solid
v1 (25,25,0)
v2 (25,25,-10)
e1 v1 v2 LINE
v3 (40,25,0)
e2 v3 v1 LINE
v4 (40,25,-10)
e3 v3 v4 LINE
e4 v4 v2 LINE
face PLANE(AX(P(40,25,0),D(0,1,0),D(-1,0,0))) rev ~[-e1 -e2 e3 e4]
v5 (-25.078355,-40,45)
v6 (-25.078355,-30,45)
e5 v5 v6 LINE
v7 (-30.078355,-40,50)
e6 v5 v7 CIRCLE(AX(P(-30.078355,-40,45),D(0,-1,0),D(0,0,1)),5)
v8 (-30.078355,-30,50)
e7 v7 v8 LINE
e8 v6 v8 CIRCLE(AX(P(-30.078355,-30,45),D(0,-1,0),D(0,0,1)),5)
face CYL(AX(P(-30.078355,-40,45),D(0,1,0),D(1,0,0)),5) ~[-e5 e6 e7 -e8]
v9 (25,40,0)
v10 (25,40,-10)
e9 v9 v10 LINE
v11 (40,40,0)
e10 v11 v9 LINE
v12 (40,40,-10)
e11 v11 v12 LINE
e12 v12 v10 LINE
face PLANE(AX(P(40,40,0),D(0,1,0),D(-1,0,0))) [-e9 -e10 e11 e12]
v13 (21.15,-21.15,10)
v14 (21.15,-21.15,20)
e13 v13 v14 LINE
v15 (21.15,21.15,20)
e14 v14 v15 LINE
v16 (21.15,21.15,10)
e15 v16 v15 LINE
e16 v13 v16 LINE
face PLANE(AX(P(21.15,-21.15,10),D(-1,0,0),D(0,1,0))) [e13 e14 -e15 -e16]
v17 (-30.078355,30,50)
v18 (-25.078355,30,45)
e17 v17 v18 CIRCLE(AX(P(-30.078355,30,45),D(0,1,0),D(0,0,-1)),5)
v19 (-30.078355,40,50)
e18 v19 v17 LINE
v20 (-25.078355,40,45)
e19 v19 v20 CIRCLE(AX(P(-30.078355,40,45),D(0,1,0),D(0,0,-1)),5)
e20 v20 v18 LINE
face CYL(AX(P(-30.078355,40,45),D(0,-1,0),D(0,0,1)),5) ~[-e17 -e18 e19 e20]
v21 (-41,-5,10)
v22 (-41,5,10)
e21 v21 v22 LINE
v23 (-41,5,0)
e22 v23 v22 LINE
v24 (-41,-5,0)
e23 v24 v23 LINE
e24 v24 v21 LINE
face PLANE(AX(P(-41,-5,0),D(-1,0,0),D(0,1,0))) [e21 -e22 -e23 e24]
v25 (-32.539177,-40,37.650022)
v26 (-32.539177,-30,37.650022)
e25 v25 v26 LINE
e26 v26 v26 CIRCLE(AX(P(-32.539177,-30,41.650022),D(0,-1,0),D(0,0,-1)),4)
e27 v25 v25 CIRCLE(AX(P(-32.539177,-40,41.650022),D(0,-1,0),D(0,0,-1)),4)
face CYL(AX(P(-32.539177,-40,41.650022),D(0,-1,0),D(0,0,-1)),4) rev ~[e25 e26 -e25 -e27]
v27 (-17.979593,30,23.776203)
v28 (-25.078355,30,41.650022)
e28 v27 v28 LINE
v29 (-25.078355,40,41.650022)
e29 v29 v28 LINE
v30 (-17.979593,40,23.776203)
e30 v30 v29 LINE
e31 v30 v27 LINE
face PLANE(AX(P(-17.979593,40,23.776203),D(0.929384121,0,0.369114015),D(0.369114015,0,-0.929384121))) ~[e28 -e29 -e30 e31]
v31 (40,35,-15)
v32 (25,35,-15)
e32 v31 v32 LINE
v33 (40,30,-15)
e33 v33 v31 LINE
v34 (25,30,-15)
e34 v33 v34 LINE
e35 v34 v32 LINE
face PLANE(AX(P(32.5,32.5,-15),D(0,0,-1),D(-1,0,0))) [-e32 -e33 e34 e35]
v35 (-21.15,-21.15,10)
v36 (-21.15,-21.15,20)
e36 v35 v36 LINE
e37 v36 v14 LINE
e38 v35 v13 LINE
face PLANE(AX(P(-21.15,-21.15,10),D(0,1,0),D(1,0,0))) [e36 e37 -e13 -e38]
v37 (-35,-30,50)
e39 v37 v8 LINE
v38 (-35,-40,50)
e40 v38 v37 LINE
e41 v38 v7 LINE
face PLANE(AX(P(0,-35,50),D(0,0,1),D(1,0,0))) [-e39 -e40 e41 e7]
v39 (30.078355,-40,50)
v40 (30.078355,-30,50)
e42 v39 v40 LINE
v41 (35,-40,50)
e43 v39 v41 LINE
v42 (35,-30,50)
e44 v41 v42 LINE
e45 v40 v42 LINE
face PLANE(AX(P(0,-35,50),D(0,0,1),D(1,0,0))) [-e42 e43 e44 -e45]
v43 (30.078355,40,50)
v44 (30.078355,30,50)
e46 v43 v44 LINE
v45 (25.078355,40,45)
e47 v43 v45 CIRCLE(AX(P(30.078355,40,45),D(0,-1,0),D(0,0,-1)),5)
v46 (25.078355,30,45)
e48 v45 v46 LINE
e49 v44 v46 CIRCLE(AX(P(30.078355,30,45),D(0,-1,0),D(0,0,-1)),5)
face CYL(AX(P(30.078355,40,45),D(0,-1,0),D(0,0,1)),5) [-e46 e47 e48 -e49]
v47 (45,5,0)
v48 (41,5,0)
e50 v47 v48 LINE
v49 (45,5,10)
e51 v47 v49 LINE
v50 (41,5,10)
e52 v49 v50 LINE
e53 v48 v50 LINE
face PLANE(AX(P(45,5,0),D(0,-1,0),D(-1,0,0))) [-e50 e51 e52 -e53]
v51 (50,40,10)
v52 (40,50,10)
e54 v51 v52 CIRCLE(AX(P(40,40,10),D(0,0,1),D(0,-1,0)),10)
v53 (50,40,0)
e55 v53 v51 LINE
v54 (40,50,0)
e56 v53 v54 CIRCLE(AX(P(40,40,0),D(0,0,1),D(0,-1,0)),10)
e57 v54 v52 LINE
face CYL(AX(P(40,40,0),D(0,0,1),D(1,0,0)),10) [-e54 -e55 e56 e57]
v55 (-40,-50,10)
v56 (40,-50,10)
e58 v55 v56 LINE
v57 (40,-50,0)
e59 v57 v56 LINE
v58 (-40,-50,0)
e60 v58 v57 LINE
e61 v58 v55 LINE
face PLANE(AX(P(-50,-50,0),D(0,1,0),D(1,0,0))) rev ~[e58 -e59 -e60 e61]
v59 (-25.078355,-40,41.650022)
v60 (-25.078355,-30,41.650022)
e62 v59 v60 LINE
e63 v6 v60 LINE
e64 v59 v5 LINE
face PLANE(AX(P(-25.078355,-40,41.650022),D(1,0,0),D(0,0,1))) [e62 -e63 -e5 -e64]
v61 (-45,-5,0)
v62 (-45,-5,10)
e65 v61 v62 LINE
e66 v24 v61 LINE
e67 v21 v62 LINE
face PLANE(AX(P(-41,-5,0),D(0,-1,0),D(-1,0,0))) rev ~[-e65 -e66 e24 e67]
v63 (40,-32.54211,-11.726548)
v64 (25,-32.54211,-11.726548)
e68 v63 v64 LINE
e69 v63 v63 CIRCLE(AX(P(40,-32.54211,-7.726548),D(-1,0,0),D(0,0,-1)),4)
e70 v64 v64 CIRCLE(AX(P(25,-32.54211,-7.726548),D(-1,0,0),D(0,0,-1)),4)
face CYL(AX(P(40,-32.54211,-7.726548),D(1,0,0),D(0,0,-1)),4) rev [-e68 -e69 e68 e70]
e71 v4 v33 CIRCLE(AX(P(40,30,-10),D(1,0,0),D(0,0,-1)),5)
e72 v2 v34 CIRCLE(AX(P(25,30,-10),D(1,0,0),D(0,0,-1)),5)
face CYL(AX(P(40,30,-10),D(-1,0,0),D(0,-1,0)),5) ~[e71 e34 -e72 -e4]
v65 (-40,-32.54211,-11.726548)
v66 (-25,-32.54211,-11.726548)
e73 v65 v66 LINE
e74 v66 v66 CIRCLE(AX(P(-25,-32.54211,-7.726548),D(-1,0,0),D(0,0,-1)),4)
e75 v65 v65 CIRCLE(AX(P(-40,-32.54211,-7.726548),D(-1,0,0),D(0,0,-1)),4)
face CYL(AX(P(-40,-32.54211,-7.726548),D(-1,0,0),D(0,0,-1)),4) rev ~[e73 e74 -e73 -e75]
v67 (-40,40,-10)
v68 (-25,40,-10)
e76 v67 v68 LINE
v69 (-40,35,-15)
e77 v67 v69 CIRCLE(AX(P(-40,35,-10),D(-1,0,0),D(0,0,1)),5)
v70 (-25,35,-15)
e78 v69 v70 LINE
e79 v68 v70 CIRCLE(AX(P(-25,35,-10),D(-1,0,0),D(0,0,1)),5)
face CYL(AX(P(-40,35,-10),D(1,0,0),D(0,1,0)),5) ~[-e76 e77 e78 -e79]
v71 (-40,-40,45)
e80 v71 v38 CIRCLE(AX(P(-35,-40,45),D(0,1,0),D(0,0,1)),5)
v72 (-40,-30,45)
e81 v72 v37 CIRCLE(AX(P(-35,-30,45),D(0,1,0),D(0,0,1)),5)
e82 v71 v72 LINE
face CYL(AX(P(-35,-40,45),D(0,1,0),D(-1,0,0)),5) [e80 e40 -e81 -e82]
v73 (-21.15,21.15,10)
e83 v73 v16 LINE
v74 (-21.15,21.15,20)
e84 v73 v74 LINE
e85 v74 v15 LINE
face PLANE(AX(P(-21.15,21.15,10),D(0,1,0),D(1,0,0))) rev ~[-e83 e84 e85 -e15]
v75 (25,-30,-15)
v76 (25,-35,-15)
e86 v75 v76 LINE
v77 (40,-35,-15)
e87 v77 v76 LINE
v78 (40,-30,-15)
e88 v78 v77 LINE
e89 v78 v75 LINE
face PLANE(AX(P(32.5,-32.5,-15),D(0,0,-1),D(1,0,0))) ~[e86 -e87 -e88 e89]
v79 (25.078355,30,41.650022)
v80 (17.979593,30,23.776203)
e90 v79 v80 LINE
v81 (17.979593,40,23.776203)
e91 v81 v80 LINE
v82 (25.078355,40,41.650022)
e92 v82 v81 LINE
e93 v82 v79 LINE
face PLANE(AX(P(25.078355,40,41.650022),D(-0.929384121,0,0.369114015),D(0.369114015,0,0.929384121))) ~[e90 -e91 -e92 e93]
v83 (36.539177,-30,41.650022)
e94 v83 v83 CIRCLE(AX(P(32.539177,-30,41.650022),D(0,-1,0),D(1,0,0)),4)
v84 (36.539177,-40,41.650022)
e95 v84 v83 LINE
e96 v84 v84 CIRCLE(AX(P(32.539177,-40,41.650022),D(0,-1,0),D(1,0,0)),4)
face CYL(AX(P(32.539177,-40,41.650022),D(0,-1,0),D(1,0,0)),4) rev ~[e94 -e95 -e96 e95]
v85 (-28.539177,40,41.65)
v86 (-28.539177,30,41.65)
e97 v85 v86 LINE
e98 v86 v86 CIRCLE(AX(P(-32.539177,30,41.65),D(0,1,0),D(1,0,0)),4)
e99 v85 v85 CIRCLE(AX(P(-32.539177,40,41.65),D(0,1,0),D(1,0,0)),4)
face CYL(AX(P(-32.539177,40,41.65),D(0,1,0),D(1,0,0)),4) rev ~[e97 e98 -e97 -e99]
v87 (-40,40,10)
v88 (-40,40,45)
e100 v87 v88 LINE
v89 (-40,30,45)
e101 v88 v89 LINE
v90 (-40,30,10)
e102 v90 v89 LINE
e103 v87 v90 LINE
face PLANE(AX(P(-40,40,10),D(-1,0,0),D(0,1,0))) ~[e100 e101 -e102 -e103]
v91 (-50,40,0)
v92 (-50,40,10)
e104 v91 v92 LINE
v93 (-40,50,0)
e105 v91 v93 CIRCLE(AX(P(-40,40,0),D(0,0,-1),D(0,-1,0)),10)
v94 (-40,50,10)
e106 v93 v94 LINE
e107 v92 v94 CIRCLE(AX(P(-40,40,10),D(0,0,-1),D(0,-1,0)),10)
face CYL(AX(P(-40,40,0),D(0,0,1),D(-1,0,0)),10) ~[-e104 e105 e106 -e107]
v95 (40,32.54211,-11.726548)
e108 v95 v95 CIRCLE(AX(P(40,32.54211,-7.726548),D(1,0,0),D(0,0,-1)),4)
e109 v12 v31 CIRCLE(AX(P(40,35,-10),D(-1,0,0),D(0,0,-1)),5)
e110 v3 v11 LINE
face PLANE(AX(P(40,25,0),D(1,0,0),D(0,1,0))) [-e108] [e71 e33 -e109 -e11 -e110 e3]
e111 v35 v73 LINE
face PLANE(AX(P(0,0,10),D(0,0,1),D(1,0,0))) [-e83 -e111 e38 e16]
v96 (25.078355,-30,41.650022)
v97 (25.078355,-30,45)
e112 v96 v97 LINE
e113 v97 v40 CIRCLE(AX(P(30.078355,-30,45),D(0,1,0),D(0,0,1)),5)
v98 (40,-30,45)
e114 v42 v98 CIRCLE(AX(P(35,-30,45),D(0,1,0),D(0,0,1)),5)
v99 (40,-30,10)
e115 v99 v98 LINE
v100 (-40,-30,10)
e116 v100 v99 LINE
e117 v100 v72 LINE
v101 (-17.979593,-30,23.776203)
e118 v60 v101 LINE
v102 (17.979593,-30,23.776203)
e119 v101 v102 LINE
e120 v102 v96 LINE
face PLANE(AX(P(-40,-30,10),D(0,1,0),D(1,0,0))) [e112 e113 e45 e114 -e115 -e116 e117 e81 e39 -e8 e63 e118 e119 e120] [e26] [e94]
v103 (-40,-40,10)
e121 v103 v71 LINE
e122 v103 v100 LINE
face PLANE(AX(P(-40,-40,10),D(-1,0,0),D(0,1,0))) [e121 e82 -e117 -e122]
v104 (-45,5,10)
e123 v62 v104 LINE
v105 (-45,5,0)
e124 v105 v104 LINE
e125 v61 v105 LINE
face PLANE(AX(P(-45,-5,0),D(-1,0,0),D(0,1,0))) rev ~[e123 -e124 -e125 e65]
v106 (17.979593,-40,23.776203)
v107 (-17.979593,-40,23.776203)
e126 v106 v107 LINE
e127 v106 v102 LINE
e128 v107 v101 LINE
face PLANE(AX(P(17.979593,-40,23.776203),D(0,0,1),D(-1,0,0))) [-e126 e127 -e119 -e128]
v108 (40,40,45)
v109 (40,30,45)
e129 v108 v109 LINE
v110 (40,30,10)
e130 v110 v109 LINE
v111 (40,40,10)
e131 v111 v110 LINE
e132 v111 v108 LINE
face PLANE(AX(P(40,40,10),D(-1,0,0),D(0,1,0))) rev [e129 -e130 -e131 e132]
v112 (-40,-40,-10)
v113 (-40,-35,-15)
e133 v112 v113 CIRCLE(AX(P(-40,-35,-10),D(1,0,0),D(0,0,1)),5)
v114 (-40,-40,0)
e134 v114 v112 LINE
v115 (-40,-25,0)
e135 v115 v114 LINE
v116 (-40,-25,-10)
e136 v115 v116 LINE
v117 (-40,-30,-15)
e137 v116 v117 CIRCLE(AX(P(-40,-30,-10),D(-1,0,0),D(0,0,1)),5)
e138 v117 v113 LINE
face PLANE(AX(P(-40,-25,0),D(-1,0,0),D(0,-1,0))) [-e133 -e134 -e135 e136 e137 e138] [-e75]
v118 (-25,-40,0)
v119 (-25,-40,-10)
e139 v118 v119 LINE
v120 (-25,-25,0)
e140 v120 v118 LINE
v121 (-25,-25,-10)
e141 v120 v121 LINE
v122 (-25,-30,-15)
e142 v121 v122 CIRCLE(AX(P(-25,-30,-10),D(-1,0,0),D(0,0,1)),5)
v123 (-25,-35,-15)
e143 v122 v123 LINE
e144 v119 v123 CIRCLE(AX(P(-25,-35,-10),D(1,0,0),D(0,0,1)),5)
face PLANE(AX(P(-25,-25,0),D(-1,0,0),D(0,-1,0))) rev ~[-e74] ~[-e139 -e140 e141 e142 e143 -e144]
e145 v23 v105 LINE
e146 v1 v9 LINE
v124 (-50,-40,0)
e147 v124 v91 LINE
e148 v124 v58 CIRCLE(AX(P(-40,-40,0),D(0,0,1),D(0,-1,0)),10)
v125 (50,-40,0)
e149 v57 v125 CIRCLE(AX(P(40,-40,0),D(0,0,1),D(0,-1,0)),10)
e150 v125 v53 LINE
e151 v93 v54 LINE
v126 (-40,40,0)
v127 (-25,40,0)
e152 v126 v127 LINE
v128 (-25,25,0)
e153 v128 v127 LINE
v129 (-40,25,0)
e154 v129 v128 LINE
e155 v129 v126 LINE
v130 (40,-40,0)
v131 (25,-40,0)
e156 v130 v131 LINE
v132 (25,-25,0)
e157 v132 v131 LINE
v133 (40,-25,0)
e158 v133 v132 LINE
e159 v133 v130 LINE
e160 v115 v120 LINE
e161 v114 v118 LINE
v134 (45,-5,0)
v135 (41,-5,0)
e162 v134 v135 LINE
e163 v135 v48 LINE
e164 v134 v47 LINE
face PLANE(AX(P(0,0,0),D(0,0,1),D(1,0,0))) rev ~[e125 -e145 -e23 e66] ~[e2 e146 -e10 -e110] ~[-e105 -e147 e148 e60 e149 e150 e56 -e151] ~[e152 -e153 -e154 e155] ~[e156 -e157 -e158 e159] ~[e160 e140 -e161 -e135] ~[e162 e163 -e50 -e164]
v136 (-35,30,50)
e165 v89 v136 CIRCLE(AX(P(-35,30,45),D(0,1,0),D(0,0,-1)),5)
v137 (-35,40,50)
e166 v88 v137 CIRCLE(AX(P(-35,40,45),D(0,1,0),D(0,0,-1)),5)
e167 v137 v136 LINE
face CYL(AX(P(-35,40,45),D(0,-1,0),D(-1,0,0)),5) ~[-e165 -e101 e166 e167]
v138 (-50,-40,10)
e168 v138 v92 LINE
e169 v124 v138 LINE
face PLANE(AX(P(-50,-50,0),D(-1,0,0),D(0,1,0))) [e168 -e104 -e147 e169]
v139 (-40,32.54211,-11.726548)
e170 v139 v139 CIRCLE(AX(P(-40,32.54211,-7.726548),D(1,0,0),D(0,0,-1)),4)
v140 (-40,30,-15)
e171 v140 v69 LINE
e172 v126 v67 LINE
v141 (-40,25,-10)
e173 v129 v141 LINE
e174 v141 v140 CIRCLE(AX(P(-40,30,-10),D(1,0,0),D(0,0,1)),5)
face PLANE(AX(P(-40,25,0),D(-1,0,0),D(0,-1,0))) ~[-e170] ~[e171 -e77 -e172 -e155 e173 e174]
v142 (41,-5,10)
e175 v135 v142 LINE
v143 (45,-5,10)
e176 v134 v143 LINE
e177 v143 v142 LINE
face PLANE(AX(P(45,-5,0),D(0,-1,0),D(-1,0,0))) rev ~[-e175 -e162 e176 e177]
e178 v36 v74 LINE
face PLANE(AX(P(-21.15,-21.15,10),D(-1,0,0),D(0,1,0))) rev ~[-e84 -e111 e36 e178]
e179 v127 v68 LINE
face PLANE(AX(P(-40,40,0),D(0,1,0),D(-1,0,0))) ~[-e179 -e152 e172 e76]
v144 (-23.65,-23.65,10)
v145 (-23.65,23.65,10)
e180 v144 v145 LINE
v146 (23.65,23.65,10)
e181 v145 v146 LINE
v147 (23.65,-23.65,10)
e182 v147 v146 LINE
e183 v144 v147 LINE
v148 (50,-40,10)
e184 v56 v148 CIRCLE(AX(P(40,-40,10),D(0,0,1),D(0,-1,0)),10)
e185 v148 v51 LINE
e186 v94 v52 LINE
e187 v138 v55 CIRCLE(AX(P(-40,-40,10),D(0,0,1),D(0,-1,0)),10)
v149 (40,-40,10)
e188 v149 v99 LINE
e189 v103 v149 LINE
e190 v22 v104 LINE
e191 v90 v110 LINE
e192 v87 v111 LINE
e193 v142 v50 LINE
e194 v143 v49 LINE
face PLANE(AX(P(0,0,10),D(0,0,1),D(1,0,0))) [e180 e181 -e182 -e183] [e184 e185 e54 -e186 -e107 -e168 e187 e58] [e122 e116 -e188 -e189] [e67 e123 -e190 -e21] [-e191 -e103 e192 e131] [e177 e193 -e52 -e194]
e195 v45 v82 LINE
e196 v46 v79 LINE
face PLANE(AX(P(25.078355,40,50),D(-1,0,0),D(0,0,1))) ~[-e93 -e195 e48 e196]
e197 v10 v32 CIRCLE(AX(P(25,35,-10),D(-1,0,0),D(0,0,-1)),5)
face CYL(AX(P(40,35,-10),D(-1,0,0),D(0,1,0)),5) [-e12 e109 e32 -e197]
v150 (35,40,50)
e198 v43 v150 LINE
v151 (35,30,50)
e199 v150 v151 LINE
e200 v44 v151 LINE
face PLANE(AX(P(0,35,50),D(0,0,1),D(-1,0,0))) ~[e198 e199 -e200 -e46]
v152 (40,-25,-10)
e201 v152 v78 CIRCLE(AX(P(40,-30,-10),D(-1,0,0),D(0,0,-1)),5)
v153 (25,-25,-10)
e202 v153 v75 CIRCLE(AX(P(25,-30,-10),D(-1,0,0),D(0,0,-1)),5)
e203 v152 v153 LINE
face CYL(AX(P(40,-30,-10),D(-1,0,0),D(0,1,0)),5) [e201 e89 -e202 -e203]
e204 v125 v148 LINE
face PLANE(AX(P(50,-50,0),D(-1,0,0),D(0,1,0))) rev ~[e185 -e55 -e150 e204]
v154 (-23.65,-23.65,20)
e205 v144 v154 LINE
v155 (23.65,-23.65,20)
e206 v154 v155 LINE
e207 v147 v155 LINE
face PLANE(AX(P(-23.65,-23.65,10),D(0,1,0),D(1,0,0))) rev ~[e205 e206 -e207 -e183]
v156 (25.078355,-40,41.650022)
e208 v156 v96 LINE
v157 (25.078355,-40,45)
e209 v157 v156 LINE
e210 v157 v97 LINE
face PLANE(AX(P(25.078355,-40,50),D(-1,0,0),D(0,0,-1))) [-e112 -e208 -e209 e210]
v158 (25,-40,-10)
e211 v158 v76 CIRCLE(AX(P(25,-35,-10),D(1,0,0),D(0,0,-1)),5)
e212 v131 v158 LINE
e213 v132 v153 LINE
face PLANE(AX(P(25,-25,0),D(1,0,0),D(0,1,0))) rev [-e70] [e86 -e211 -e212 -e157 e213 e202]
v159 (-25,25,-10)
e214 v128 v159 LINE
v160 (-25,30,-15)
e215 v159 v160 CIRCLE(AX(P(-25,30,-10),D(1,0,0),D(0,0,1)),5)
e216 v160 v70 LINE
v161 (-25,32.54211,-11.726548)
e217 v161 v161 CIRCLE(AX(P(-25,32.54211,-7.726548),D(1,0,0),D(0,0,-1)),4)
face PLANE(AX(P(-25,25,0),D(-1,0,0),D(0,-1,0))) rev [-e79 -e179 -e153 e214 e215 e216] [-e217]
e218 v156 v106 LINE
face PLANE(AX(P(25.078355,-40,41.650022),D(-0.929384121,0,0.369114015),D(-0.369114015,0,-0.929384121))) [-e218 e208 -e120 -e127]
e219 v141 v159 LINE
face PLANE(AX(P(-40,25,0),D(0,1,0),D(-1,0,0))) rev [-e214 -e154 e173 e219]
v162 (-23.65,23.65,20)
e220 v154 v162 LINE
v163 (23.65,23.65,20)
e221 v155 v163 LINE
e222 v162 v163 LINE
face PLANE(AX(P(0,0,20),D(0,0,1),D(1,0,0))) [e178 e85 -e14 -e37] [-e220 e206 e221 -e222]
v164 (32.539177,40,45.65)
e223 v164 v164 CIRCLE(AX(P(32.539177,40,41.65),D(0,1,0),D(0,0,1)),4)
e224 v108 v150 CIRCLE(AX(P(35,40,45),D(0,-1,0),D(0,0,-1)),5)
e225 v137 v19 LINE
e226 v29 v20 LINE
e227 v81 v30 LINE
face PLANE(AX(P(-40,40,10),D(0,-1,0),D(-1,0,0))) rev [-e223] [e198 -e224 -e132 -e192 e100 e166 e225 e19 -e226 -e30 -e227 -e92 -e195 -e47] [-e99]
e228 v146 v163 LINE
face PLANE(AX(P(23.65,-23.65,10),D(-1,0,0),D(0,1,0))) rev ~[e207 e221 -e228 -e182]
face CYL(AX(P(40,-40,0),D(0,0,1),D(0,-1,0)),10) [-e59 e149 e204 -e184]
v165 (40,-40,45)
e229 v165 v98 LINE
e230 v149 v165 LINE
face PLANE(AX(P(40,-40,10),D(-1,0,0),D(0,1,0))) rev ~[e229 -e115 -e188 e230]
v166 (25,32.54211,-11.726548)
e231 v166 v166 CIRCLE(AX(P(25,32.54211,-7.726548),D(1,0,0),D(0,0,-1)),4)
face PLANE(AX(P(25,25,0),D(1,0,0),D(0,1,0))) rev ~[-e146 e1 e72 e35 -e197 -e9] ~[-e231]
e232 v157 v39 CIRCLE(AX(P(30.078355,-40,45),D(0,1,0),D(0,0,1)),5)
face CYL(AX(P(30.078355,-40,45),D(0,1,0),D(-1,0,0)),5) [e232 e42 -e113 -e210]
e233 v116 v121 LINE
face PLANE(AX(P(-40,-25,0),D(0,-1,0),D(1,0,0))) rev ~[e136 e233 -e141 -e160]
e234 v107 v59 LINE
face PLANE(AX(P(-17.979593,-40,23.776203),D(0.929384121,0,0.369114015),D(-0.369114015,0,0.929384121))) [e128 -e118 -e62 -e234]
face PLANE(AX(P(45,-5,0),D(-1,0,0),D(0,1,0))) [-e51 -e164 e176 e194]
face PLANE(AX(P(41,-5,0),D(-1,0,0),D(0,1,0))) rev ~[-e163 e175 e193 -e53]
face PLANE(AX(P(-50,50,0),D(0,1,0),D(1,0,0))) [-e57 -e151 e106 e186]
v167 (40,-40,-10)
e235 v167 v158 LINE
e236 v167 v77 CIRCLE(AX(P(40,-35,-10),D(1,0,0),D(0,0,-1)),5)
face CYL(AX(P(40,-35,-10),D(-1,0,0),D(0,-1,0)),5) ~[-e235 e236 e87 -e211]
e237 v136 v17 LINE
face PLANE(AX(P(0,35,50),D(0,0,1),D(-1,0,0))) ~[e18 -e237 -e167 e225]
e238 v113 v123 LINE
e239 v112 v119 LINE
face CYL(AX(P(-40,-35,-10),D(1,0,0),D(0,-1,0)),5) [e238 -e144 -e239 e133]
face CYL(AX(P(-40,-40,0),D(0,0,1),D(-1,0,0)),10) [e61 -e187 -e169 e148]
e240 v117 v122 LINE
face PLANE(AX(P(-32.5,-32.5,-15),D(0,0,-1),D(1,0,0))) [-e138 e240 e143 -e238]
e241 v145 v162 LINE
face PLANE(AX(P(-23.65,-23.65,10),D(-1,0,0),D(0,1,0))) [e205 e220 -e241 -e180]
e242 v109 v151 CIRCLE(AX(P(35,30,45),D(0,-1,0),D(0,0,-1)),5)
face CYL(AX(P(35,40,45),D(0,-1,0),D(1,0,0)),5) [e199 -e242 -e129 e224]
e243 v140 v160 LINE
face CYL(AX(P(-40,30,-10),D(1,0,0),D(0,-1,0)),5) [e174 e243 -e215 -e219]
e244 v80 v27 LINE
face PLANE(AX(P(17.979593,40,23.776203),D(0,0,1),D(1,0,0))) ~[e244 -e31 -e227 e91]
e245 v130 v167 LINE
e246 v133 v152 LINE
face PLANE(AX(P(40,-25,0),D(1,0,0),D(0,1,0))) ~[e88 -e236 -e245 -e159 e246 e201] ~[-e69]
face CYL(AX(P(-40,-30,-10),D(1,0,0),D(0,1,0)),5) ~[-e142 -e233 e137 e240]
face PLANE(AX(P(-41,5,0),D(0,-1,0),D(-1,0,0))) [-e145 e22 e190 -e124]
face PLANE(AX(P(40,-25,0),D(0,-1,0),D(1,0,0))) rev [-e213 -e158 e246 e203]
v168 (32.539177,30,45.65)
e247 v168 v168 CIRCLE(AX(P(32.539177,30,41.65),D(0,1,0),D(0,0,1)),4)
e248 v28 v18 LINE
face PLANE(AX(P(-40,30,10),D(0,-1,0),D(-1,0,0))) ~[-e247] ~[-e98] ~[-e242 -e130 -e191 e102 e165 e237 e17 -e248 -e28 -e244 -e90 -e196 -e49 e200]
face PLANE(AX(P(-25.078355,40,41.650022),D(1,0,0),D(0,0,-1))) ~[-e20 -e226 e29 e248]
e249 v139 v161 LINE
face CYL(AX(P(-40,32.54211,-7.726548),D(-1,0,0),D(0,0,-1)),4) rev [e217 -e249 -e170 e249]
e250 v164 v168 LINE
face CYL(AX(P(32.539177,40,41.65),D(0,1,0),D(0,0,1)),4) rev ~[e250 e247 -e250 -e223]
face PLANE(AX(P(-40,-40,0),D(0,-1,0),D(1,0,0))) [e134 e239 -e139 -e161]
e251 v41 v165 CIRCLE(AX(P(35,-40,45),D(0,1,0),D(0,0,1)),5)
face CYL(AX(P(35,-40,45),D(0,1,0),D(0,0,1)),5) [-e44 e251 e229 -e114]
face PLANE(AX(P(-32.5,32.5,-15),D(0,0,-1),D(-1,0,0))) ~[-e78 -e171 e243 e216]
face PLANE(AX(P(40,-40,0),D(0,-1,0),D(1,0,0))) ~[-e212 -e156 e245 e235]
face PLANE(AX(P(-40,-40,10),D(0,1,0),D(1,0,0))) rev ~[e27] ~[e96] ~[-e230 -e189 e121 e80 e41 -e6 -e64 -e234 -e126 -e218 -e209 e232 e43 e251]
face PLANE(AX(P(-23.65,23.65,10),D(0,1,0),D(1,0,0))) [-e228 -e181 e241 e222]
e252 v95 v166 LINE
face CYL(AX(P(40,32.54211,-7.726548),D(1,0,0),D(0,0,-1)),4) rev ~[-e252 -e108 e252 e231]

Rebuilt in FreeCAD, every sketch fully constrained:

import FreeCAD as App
import Part
import Sketcher

V = App.Vector
Q = App.Units.Quantity


def edges_at(feature, points):
    """Names of the edges that pass closest to the given points."""
    edges = feature.Shape.Edges
    near = lambda p: min(range(len(edges)), key=lambda i: edges[i].distToShape(Part.Vertex(*p))[0])
    return sorted({f"Edge{near(p) + 1}" for p in points})

doc = App.newDocument("Part")
body = doc.addObject("PartDesign::Body", "Body")

# Sketch on XY plane
sketch1 = doc.addObject("Sketcher::SketchObject", "Sketch")
body.addObject(sketch1)
sketch1.AttachmentSupport = (doc.XY_Plane, [""])
sketch1.MapMode = "FlatFace"
sketch1.addGeometry([
    Part.LineSegment(V(-50, 50, 0), V(-50, -50, 0)),
    Part.LineSegment(V(-50, -50, 0), V(50, -50, 0)),
    Part.LineSegment(V(50, -50, 0), V(50, 50, 0)),
    Part.LineSegment(V(50, 50, 0), V(-50, 50, 0)),
], False)
sketch1.addConstraint([
    Sketcher.Constraint("Coincident", 0, 2, 1, 1),
    Sketcher.Constraint("Coincident", 1, 2, 2, 1),
    Sketcher.Constraint("Coincident", 2, 2, 3, 1),
    Sketcher.Constraint("Coincident", 3, 2, 0, 1),
    Sketcher.Constraint("Vertical", 0),
    Sketcher.Constraint("Horizontal", 1),
    Sketcher.Constraint("Vertical", 2),
    Sketcher.Constraint("Horizontal", 3),
    Sketcher.Constraint("Symmetric", 0, 2, 2, 2, -1, 1),
    Sketcher.Constraint("Equal", 3, 0),
    Sketcher.Constraint("DistanceX", 1, 1, 1, 2, Q("100 mm")),
])
pad1 = doc.addObject("PartDesign::Pad", "Pad")
body.addObject(pad1)
pad1.Profile = sketch1
pad1.Length = 10
doc.recompute()

fillet = doc.addObject("PartDesign::Fillet", "Fillet")
body.addObject(fillet)
fillet.Base = (pad1, edges_at(pad1, [
    (50, -50, 5),
    (-50, -50, 5),
    (-50, 50, 5),
    (50, 50, 5),
]))
fillet.Radius = 10

# Sketch on XY plane
sketch2 = doc.addObject("Sketcher::SketchObject", "Sketch001")
body.addObject(sketch2)
sketch2.AttachmentSupport = (doc.XY_Plane, [""])
sketch2.MapMode = "FlatFace"
sketch2.addGeometry([
    Part.LineSegment(V(40, 40, 0), V(40, 25, 0)),
    Part.LineSegment(V(40, 25, 0), V(25, 25, 0)),
    Part.LineSegment(V(25, 25, 0), V(25, 40, 0)),
    Part.LineSegment(V(25, 40, 0), V(40, 40, 0)),
], False)
sketch2.addConstraint([
    Sketcher.Constraint("Coincident", 0, 2, 1, 1),
    Sketcher.Constraint("Coincident", 1, 2, 2, 1),
    Sketcher.Constraint("Coincident", 2, 2, 3, 1),
    Sketcher.Constraint("Coincident", 3, 2, 0, 1),
    Sketcher.Constraint("Vertical", 0),
    Sketcher.Constraint("Horizontal", 1),
    Sketcher.Constraint("Vertical", 2),
    Sketcher.Constraint("Horizontal", 3),
    Sketcher.Constraint("Equal", 3, 0),
    Sketcher.Constraint("DistanceX", 1, 2, 1, 1, Q("15 mm")),
    Sketcher.Constraint("DistanceX", -1, 1, 0, 2, Q("40 mm")),
    Sketcher.Constraint("DistanceY", -1, 1, 0, 2, Q("25 mm")),
])
pad2 = doc.addObject("PartDesign::Pad", "Pad001")
body.addObject(pad2)
pad2.Profile = sketch2
pad2.Length = 15
pad2.Reversed = True
doc.recompute()

fillet2 = doc.addObject("PartDesign::Fillet", "Fillet001")
body.addObject(fillet2)
fillet2.Base = (pad2, edges_at(pad2, [(32.5, 25, -15), (32.5, 40, -15)]))
fillet2.Radius = 5

# Sketch on YZ plane
sketch3 = doc.addObject("Sketcher::SketchObject", "Sketch002")
body.addObject(sketch3)
sketch3.AttachmentSupport = (doc.YZ_Plane, [""])
sketch3.MapMode = "FlatFace"
sketch3.AttachmentOffset = App.Placement(V(0, 0, 40), App.Rotation())
sketch3.addGeometry(Part.Circle(V(32.54211, -7.726548, 0), V(0, 0, 1), 4), False)
sketch3.addConstraint([
    Sketcher.Constraint("Diameter", 0, Q("8 mm")),
    Sketcher.Constraint("DistanceX", -1, 1, 0, 3, Q("32.54211 mm")),
    Sketcher.Constraint("DistanceY", 0, 3, -1, 1, Q("7.726548 mm")),
])
pocket1 = doc.addObject("PartDesign::Pocket", "Pocket")
body.addObject(pocket1)
pocket1.Profile = sketch3
pocket1.Length = 15
doc.recompute()

mirrored = doc.addObject("PartDesign::Mirrored", "Mirrored")
body.addObject(mirrored)
mirrored.Originals = [pad2, pocket1]
mirrored.MirrorPlane = (doc.YZ_Plane, [""])
body.Tip = mirrored
doc.recompute()

fillet3 = doc.addObject("PartDesign::Fillet", "Fillet002")
body.addObject(fillet3)
fillet3.Base = (mirrored, edges_at(mirrored, [(-32.5, 40, -15), (-32.5, 25, -15)]))
fillet3.Radius = 5
doc.recompute()

mirrored2 = doc.addObject("PartDesign::Mirrored", "Mirrored001")
body.addObject(mirrored2)
mirrored2.Originals = [pad2, pocket1]
mirrored2.MirrorPlane = (doc.XZ_Plane, [""])
body.Tip = mirrored2

# Sketch on XY plane
sketch4 = doc.addObject("Sketcher::SketchObject", "Sketch003")
body.addObject(sketch4)
sketch4.AttachmentSupport = (doc.XY_Plane, [""])
sketch4.MapMode = "FlatFace"
sketch4.addGeometry([
    Part.LineSegment(V(-40, -40, 0), V(-40, -25, 0)),
    Part.LineSegment(V(-40, -25, 0), V(-25, -25, 0)),
    Part.LineSegment(V(-25, -25, 0), V(-25, -40, 0)),
    Part.LineSegment(V(-25, -40, 0), V(-40, -40, 0)),
], False)
sketch4.addConstraint([
    Sketcher.Constraint("Coincident", 0, 2, 1, 1),
    Sketcher.Constraint("Coincident", 1, 2, 2, 1),
    Sketcher.Constraint("Coincident", 2, 2, 3, 1),
    Sketcher.Constraint("Coincident", 3, 2, 0, 1),
    Sketcher.Constraint("Vertical", 0),
    Sketcher.Constraint("Horizontal", 1),
    Sketcher.Constraint("Vertical", 2),
    Sketcher.Constraint("Horizontal", 3),
    Sketcher.Constraint("Equal", 3, 0),
    Sketcher.Constraint("DistanceX", 1, 1, 1, 2, Q("15 mm")),
    Sketcher.Constraint("DistanceX", 0, 2, -1, 1, Q("40 mm")),
    Sketcher.Constraint("DistanceY", 0, 2, -1, 1, Q("25 mm")),
])
pad3 = doc.addObject("PartDesign::Pad", "Pad002")
body.addObject(pad3)
pad3.Profile = sketch4
pad3.Length = 15
pad3.Reversed = True

# Sketch on YZ plane
sketch5 = doc.addObject("Sketcher::SketchObject", "Sketch004")
body.addObject(sketch5)
sketch5.AttachmentSupport = (doc.YZ_Plane, [""])
sketch5.MapMode = "FlatFace"
sketch5.AttachmentOffset = App.Placement(V(0, 0, -40), App.Rotation())
sketch5.addGeometry(Part.Circle(V(-32.54211, -7.726548, 0), V(0, 0, 1), 4), False)
sketch5.addConstraint([
    Sketcher.Constraint("Diameter", 0, Q("8 mm")),
    Sketcher.Constraint("DistanceX", 0, 3, -1, 1, Q("32.54211 mm")),
    Sketcher.Constraint("DistanceY", 0, 3, -1, 1, Q("7.726548 mm")),
])
pocket2 = doc.addObject("PartDesign::Pocket", "Pocket001")
body.addObject(pocket2)
pocket2.Profile = sketch5
pocket2.Length = 15
pocket2.Reversed = True
doc.recompute()

fillet4 = doc.addObject("PartDesign::Fillet", "Fillet003")
body.addObject(fillet4)
fillet4.Base = (pocket2, edges_at(pocket2, [(-32.5, -40, -15), (-32.5, -25, -15)]))
fillet4.Radius = 5
doc.recompute()

fillet5 = doc.addObject("PartDesign::Fillet", "Fillet004")
body.addObject(fillet5)
fillet5.Base = (fillet4, edges_at(fillet4, [(32.5, -40, -15), (32.5, -25, -15)]))
fillet5.Radius = 5

# Sketch on XY plane
sketch6 = doc.addObject("Sketcher::SketchObject", "Sketch005")
body.addObject(sketch6)
sketch6.AttachmentSupport = (doc.XY_Plane, [""])
sketch6.MapMode = "FlatFace"
sketch6.AttachmentOffset = App.Placement(V(0, 0, 10), App.Rotation())
sketch6.addGeometry([
    Part.LineSegment(V(-23.65, 23.65, 0), V(-23.65, -23.65, 0)),  # 0
    Part.LineSegment(V(-23.65, -23.65, 0), V(23.65, -23.65, 0)),  # 1
    Part.LineSegment(V(23.65, -23.65, 0), V(23.65, 23.65, 0)),  # 2
    Part.LineSegment(V(23.65, 23.65, 0), V(-23.65, 23.65, 0)),  # 3
    Part.LineSegment(V(21.15, -21.15, 0), V(-21.15, -21.15, 0)),  # 4
    Part.LineSegment(V(-21.15, -21.15, 0), V(-21.15, 21.15, 0)),  # 5
    Part.LineSegment(V(-21.15, 21.15, 0), V(21.15, 21.15, 0)),  # 6
    Part.LineSegment(V(21.15, 21.15, 0), V(21.15, -21.15, 0)),  # 7
], False)
sketch6.addConstraint([
    Sketcher.Constraint("Coincident", 0, 2, 1, 1),
    Sketcher.Constraint("Coincident", 1, 2, 2, 1),
    Sketcher.Constraint("Coincident", 2, 2, 3, 1),
    Sketcher.Constraint("Coincident", 3, 2, 0, 1),
    Sketcher.Constraint("Coincident", 4, 2, 5, 1),
    Sketcher.Constraint("Coincident", 5, 2, 6, 1),
    Sketcher.Constraint("Coincident", 6, 2, 7, 1),
    Sketcher.Constraint("Coincident", 7, 2, 4, 1),
    Sketcher.Constraint("Vertical", 0),
    Sketcher.Constraint("Horizontal", 1),
    Sketcher.Constraint("Vertical", 2),
    Sketcher.Constraint("Horizontal", 3),
    Sketcher.Constraint("Horizontal", 4),
    Sketcher.Constraint("Vertical", 5),
    Sketcher.Constraint("Horizontal", 6),
    Sketcher.Constraint("Vertical", 7),
    Sketcher.Constraint("Symmetric", 0, 2, 2, 2, -1, 1),
    Sketcher.Constraint("Symmetric", 4, 2, 6, 2, -1, 1),
    Sketcher.Constraint("Equal", 3, 0),
    Sketcher.Constraint("Equal", 6, 5),
    Sketcher.Constraint("DistanceX", 1, 1, 1, 2, Q("47.3 mm")),
    Sketcher.Constraint("DistanceX", 4, 2, 4, 1, Q("42.3 mm")),
])
pad4 = doc.addObject("PartDesign::Pad", "Pad003")
body.addObject(pad4)
pad4.Profile = sketch6
pad4.Length = 10

# Sketch on XY plane
sketch7 = doc.addObject("Sketcher::SketchObject", "Sketch006")
body.addObject(sketch7)
sketch7.AttachmentSupport = (doc.XY_Plane, [""])
sketch7.MapMode = "FlatFace"
sketch7.AttachmentOffset = App.Placement(V(0, 0, 10), App.Rotation())
sketch7.addGeometry([
    Part.LineSegment(V(-40, -30, 0), V(-40, -40, 0)),
    Part.LineSegment(V(-40, -40, 0), V(40, -40, 0)),
    Part.LineSegment(V(40, -40, 0), V(40, -30, 0)),
    Part.LineSegment(V(40, -30, 0), V(-40, -30, 0)),
], False)
sketch7.addConstraint([
    Sketcher.Constraint("Coincident", 0, 2, 1, 1),
    Sketcher.Constraint("Coincident", 1, 2, 2, 1),
    Sketcher.Constraint("Coincident", 2, 2, 3, 1),
    Sketcher.Constraint("Coincident", 3, 2, 0, 1),
    Sketcher.Constraint("Vertical", 0),
    Sketcher.Constraint("Horizontal", 1),
    Sketcher.Constraint("Vertical", 2),
    Sketcher.Constraint("Horizontal", 3),
    Sketcher.Constraint("DistanceX", 1, 1, 1, 2, Q("80 mm")),
    Sketcher.Constraint("DistanceY", 0, 2, 0, 1, Q("10 mm")),
    Sketcher.Constraint("DistanceX", 0, 2, -1, 1, Q("40 mm")),
    Sketcher.Constraint("DistanceY", 0, 2, -1, 1, Q("40 mm")),
])
pad5 = doc.addObject("PartDesign::Pad", "Pad004")
body.addObject(pad5)
pad5.Profile = sketch7
pad5.Length = 40

# Sketch on XZ plane
sketch8 = doc.addObject("Sketcher::SketchObject", "Sketch007")
body.addObject(sketch8)
sketch8.AttachmentSupport = (doc.XZ_Plane, [""])
sketch8.MapMode = "FlatFace"
sketch8.AttachmentOffset = App.Placement(V(0, 0, 40), App.Rotation())
sketch8.addGeometry(Part.Circle(V(32.539177, 41.650022, 0), V(0, 0, 1), 4), False)
sketch8.addConstraint([
    Sketcher.Constraint("Diameter", 0, Q("8 mm")),
    Sketcher.Constraint("DistanceY", -1, 1, 0, 3, Q("41.650022 mm")),
    Sketcher.Constraint("DistanceX", -1, 1, 0, 3, Q("32.539177 mm")),
])
pocket3 = doc.addObject("PartDesign::Pocket", "Pocket002")
body.addObject(pocket3)
pocket3.Profile = sketch8
pocket3.Length = 30

# Sketch on XZ plane
sketch9 = doc.addObject("Sketcher::SketchObject", "Sketch008")
body.addObject(sketch9)
sketch9.AttachmentSupport = (doc.XZ_Plane, [""])
sketch9.MapMode = "FlatFace"
sketch9.AttachmentOffset = App.Placement(V(0, 0, 40), App.Rotation())
sketch9.addGeometry([
    Part.Circle(V(-32.539177, 41.650022, 0), V(0, 0, 1), 4),
    Part.Circle(V(32.539177, 41.650022, 0), V(0, 0, 1), 4),
], False)
sketch9.addConstraint([
    Sketcher.Constraint("Equal", 0, 1),
    Sketcher.Constraint("Symmetric", 0, 3, 1, 3, -2),
    Sketcher.Constraint("Diameter", 0, Q("8 mm")),
    Sketcher.Constraint("DistanceY", -1, 1, 0, 3, Q("41.650022 mm")),
    Sketcher.Constraint("DistanceX", 0, 3, -1, 1, Q("32.539177 mm")),
])
pocket4 = doc.addObject("PartDesign::Pocket", "Pocket003")
body.addObject(pocket4)
pocket4.Profile = sketch9
pocket4.Length = 30
doc.recompute()

fillet6 = doc.addObject("PartDesign::Fillet", "Fillet005")
body.addObject(fillet6)
fillet6.Base = (pocket4, edges_at(pocket4, [(-40, -35, 50)]))
fillet6.Radius = 5
doc.recompute()

fillet7 = doc.addObject("PartDesign::Fillet", "Fillet006")
body.addObject(fillet7)
fillet7.Base = (fillet6, edges_at(fillet6, [(40, -35, 50)]))
fillet7.Radius = 5

# Sketch on XZ plane
sketch10 = doc.addObject("Sketcher::SketchObject", "Sketch009")
body.addObject(sketch10)
sketch10.AttachmentSupport = (doc.XZ_Plane, [""])
sketch10.MapMode = "FlatFace"
sketch10.AttachmentOffset = App.Placement(V(0, 0, 40), App.Rotation())
sketch10.addGeometry([
    Part.LineSegment(V(-25.078355, 50, 0), V(-25.078355, 41.650022, 0)),  # 0
    Part.LineSegment(V(-25.078355, 41.650022, 0), V(-17.979593, 23.776203, 0)),  # 1
    Part.LineSegment(V(-17.979593, 23.776203, 0), V(17.979593, 23.776203, 0)),  # 2
    Part.LineSegment(V(17.979593, 23.776203, 0), V(25.078355, 41.650022, 0)),  # 3
    Part.LineSegment(V(25.078355, 41.650022, 0), V(25.078355, 50, 0)),  # 4
    Part.LineSegment(V(25.078355, 50, 0), V(-25.078355, 50, 0)),  # 5
], False)
sketch10.addConstraint([
    Sketcher.Constraint("Coincident", 0, 2, 1, 1),
    Sketcher.Constraint("Coincident", 1, 2, 2, 1),
    Sketcher.Constraint("Coincident", 2, 2, 3, 1),
    Sketcher.Constraint("Coincident", 3, 2, 4, 1),
    Sketcher.Constraint("Coincident", 4, 2, 5, 1),
    Sketcher.Constraint("Coincident", 5, 2, 0, 1),
    Sketcher.Constraint("Vertical", 0),
    Sketcher.Constraint("Horizontal", 2),
    Sketcher.Constraint("Vertical", 4),
    Sketcher.Constraint("Horizontal", 5),
    Sketcher.Constraint("Symmetric", 0, 2, 3, 2, -2),
    Sketcher.Constraint("Equal", 1, 3),
    Sketcher.Constraint("DistanceY", -1, 1, 4, 2, Q("50 mm")),
    Sketcher.Constraint("DistanceX", 5, 2, 5, 1, Q("50.15671 mm")),
    Sketcher.Constraint("DistanceY", 0, 2, 0, 1, Q("8.349978 mm")),
    Sketcher.Constraint("DistanceX", 2, 1, 2, 2, Q("35.959185 mm")),
    Sketcher.Constraint("DistanceY", 1, 2, 0, 2, Q("17.873818 mm")),
])
pocket5 = doc.addObject("PartDesign::Pocket", "Pocket004")
body.addObject(pocket5)
pocket5.Profile = sketch10
pocket5.Length = 30
doc.recompute()

fillet8 = doc.addObject("PartDesign::Fillet", "Fillet007")
body.addObject(fillet8)
fillet8.Base = (pocket5, edges_at(pocket5, [(-25.078, -35, 50)]))
fillet8.Radius = 5
doc.recompute()

fillet9 = doc.addObject("PartDesign::Fillet", "Fillet008")
body.addObject(fillet9)
fillet9.Base = (fillet8, edges_at(fillet8, [(25.078, -35, 50)]))
fillet9.Radius = 5
doc.recompute()

mirrored3 = doc.addObject("PartDesign::Mirrored", "Mirrored002")
body.addObject(mirrored3)
mirrored3.Originals = [pad5]
mirrored3.MirrorPlane = (doc.XZ_Plane, [""])
body.Tip = mirrored3
doc.recompute()

mirrored4 = doc.addObject("PartDesign::Mirrored", "Mirrored003")
body.addObject(mirrored4)
mirrored4.Originals = [pad5, pocket5]
mirrored4.MirrorPlane = (doc.XZ_Plane, [""])
body.Tip = mirrored4
doc.recompute()

fillet10 = doc.addObject("PartDesign::Fillet", "Fillet009")
body.addObject(fillet10)
fillet10.Base = (mirrored4, edges_at(mirrored4, [
    (40, 35, 50),
    (-40, 35, 50),
    (25.078, 35, 50),
    (-25.078, 35, 50),
]))
fillet10.Radius = 5

# Sketch on XZ plane
sketch11 = doc.addObject("Sketcher::SketchObject", "Sketch010")
body.addObject(sketch11)
sketch11.AttachmentSupport = (doc.XZ_Plane, [""])
sketch11.MapMode = "FlatFace"
sketch11.AttachmentOffset = App.Placement(V(0, 0, -40), App.Rotation())
sketch11.addGeometry(Part.Circle(V(32.539177, 41.65, 0), V(0, 0, 1), 4), False)
sketch11.addConstraint([
    Sketcher.Constraint("Diameter", 0, Q("8 mm")),
    Sketcher.Constraint("DistanceY", -1, 1, 0, 3, Q("41.65 mm")),
    Sketcher.Constraint("DistanceX", -1, 1, 0, 3, Q("32.539177 mm")),
])
pocket6 = doc.addObject("PartDesign::Pocket", "Pocket005")
body.addObject(pocket6)
pocket6.Profile = sketch11
pocket6.Length = 30
pocket6.Reversed = True

# Sketch on XZ plane
sketch12 = doc.addObject("Sketcher::SketchObject", "Sketch011")
body.addObject(sketch12)
sketch12.AttachmentSupport = (doc.XZ_Plane, [""])
sketch12.MapMode = "FlatFace"
sketch12.AttachmentOffset = App.Placement(V(0, 0, -40), App.Rotation())
sketch12.addGeometry([
    Part.Circle(V(32.539177, 41.65, 0), V(0, 0, 1), 4),
    Part.Circle(V(-32.539177, 41.65, 0), V(0, 0, 1), 4),
], False)
sketch12.addConstraint([
    Sketcher.Constraint("Equal", 0, 1),
    Sketcher.Constraint("Symmetric", 0, 3, 1, 3, -2),
    Sketcher.Constraint("Diameter", 0, Q("8 mm")),
    Sketcher.Constraint("DistanceY", -1, 1, 0, 3, Q("41.65 mm")),
    Sketcher.Constraint("DistanceX", -1, 1, 0, 3, Q("32.539177 mm")),
])
pocket7 = doc.addObject("PartDesign::Pocket", "Pocket006")
body.addObject(pocket7)
pocket7.Profile = sketch12
pocket7.Length = 30
pocket7.Reversed = True

# Sketch on XY plane
sketch13 = doc.addObject("Sketcher::SketchObject", "Sketch012")
body.addObject(sketch13)
sketch13.AttachmentSupport = (doc.XY_Plane, [""])
sketch13.MapMode = "FlatFace"
sketch13.addGeometry([
    Part.LineSegment(V(45, 5, 0), V(45, -5, 0)),  # 0
    Part.LineSegment(V(45, -5, 0), V(41, -5, 0)),  # 1
    Part.LineSegment(V(41, -5, 0), V(41, 5, 0)),  # 2
    Part.LineSegment(V(41, 5, 0), V(45, 5, 0)),  # 3
    Part.LineSegment(V(-41, 5, 0), V(-41, -5, 0)),  # 4
    Part.LineSegment(V(-41, -5, 0), V(-45, -5, 0)),  # 5
    Part.LineSegment(V(-45, -5, 0), V(-45, 5, 0)),  # 6
    Part.LineSegment(V(-45, 5, 0), V(-41, 5, 0)),  # 7
], False)
sketch13.addConstraint([
    Sketcher.Constraint("Coincident", 0, 2, 1, 1),
    Sketcher.Constraint("Coincident", 1, 2, 2, 1),
    Sketcher.Constraint("Coincident", 2, 2, 3, 1),
    Sketcher.Constraint("Coincident", 3, 2, 0, 1),
    Sketcher.Constraint("Coincident", 4, 2, 5, 1),
    Sketcher.Constraint("Coincident", 5, 2, 6, 1),
    Sketcher.Constraint("Coincident", 6, 2, 7, 1),
    Sketcher.Constraint("Coincident", 7, 2, 4, 1),
    Sketcher.Constraint("Vertical", 0),
    Sketcher.Constraint("Horizontal", 1),
    Sketcher.Constraint("Vertical", 2),
    Sketcher.Constraint("Horizontal", 3),
    Sketcher.Constraint("Vertical", 4),
    Sketcher.Constraint("Horizontal", 5),
    Sketcher.Constraint("Vertical", 6),
    Sketcher.Constraint("Horizontal", 7),
    Sketcher.Constraint("Symmetric", 2, 2, 4, 2, -1, 1),
    Sketcher.Constraint("Symmetric", 0, 2, 6, 2, -1, 1),
    Sketcher.Constraint("Horizontal", 1, 2, 4, 2),
    Sketcher.Constraint("DistanceX", 1, 2, 1, 1, Q("4 mm")),
    Sketcher.Constraint("DistanceY", 0, 2, 0, 1, Q("10 mm")),
    Sketcher.Constraint("DistanceX", -1, 1, 0, 2, Q("45 mm")),
])
pocket8 = doc.addObject("PartDesign::Pocket", "Pocket007")
body.addObject(pocket8)
pocket8.Profile = sketch13
pocket8.Length = 10
pocket8.Reversed = True

doc.recompute()
